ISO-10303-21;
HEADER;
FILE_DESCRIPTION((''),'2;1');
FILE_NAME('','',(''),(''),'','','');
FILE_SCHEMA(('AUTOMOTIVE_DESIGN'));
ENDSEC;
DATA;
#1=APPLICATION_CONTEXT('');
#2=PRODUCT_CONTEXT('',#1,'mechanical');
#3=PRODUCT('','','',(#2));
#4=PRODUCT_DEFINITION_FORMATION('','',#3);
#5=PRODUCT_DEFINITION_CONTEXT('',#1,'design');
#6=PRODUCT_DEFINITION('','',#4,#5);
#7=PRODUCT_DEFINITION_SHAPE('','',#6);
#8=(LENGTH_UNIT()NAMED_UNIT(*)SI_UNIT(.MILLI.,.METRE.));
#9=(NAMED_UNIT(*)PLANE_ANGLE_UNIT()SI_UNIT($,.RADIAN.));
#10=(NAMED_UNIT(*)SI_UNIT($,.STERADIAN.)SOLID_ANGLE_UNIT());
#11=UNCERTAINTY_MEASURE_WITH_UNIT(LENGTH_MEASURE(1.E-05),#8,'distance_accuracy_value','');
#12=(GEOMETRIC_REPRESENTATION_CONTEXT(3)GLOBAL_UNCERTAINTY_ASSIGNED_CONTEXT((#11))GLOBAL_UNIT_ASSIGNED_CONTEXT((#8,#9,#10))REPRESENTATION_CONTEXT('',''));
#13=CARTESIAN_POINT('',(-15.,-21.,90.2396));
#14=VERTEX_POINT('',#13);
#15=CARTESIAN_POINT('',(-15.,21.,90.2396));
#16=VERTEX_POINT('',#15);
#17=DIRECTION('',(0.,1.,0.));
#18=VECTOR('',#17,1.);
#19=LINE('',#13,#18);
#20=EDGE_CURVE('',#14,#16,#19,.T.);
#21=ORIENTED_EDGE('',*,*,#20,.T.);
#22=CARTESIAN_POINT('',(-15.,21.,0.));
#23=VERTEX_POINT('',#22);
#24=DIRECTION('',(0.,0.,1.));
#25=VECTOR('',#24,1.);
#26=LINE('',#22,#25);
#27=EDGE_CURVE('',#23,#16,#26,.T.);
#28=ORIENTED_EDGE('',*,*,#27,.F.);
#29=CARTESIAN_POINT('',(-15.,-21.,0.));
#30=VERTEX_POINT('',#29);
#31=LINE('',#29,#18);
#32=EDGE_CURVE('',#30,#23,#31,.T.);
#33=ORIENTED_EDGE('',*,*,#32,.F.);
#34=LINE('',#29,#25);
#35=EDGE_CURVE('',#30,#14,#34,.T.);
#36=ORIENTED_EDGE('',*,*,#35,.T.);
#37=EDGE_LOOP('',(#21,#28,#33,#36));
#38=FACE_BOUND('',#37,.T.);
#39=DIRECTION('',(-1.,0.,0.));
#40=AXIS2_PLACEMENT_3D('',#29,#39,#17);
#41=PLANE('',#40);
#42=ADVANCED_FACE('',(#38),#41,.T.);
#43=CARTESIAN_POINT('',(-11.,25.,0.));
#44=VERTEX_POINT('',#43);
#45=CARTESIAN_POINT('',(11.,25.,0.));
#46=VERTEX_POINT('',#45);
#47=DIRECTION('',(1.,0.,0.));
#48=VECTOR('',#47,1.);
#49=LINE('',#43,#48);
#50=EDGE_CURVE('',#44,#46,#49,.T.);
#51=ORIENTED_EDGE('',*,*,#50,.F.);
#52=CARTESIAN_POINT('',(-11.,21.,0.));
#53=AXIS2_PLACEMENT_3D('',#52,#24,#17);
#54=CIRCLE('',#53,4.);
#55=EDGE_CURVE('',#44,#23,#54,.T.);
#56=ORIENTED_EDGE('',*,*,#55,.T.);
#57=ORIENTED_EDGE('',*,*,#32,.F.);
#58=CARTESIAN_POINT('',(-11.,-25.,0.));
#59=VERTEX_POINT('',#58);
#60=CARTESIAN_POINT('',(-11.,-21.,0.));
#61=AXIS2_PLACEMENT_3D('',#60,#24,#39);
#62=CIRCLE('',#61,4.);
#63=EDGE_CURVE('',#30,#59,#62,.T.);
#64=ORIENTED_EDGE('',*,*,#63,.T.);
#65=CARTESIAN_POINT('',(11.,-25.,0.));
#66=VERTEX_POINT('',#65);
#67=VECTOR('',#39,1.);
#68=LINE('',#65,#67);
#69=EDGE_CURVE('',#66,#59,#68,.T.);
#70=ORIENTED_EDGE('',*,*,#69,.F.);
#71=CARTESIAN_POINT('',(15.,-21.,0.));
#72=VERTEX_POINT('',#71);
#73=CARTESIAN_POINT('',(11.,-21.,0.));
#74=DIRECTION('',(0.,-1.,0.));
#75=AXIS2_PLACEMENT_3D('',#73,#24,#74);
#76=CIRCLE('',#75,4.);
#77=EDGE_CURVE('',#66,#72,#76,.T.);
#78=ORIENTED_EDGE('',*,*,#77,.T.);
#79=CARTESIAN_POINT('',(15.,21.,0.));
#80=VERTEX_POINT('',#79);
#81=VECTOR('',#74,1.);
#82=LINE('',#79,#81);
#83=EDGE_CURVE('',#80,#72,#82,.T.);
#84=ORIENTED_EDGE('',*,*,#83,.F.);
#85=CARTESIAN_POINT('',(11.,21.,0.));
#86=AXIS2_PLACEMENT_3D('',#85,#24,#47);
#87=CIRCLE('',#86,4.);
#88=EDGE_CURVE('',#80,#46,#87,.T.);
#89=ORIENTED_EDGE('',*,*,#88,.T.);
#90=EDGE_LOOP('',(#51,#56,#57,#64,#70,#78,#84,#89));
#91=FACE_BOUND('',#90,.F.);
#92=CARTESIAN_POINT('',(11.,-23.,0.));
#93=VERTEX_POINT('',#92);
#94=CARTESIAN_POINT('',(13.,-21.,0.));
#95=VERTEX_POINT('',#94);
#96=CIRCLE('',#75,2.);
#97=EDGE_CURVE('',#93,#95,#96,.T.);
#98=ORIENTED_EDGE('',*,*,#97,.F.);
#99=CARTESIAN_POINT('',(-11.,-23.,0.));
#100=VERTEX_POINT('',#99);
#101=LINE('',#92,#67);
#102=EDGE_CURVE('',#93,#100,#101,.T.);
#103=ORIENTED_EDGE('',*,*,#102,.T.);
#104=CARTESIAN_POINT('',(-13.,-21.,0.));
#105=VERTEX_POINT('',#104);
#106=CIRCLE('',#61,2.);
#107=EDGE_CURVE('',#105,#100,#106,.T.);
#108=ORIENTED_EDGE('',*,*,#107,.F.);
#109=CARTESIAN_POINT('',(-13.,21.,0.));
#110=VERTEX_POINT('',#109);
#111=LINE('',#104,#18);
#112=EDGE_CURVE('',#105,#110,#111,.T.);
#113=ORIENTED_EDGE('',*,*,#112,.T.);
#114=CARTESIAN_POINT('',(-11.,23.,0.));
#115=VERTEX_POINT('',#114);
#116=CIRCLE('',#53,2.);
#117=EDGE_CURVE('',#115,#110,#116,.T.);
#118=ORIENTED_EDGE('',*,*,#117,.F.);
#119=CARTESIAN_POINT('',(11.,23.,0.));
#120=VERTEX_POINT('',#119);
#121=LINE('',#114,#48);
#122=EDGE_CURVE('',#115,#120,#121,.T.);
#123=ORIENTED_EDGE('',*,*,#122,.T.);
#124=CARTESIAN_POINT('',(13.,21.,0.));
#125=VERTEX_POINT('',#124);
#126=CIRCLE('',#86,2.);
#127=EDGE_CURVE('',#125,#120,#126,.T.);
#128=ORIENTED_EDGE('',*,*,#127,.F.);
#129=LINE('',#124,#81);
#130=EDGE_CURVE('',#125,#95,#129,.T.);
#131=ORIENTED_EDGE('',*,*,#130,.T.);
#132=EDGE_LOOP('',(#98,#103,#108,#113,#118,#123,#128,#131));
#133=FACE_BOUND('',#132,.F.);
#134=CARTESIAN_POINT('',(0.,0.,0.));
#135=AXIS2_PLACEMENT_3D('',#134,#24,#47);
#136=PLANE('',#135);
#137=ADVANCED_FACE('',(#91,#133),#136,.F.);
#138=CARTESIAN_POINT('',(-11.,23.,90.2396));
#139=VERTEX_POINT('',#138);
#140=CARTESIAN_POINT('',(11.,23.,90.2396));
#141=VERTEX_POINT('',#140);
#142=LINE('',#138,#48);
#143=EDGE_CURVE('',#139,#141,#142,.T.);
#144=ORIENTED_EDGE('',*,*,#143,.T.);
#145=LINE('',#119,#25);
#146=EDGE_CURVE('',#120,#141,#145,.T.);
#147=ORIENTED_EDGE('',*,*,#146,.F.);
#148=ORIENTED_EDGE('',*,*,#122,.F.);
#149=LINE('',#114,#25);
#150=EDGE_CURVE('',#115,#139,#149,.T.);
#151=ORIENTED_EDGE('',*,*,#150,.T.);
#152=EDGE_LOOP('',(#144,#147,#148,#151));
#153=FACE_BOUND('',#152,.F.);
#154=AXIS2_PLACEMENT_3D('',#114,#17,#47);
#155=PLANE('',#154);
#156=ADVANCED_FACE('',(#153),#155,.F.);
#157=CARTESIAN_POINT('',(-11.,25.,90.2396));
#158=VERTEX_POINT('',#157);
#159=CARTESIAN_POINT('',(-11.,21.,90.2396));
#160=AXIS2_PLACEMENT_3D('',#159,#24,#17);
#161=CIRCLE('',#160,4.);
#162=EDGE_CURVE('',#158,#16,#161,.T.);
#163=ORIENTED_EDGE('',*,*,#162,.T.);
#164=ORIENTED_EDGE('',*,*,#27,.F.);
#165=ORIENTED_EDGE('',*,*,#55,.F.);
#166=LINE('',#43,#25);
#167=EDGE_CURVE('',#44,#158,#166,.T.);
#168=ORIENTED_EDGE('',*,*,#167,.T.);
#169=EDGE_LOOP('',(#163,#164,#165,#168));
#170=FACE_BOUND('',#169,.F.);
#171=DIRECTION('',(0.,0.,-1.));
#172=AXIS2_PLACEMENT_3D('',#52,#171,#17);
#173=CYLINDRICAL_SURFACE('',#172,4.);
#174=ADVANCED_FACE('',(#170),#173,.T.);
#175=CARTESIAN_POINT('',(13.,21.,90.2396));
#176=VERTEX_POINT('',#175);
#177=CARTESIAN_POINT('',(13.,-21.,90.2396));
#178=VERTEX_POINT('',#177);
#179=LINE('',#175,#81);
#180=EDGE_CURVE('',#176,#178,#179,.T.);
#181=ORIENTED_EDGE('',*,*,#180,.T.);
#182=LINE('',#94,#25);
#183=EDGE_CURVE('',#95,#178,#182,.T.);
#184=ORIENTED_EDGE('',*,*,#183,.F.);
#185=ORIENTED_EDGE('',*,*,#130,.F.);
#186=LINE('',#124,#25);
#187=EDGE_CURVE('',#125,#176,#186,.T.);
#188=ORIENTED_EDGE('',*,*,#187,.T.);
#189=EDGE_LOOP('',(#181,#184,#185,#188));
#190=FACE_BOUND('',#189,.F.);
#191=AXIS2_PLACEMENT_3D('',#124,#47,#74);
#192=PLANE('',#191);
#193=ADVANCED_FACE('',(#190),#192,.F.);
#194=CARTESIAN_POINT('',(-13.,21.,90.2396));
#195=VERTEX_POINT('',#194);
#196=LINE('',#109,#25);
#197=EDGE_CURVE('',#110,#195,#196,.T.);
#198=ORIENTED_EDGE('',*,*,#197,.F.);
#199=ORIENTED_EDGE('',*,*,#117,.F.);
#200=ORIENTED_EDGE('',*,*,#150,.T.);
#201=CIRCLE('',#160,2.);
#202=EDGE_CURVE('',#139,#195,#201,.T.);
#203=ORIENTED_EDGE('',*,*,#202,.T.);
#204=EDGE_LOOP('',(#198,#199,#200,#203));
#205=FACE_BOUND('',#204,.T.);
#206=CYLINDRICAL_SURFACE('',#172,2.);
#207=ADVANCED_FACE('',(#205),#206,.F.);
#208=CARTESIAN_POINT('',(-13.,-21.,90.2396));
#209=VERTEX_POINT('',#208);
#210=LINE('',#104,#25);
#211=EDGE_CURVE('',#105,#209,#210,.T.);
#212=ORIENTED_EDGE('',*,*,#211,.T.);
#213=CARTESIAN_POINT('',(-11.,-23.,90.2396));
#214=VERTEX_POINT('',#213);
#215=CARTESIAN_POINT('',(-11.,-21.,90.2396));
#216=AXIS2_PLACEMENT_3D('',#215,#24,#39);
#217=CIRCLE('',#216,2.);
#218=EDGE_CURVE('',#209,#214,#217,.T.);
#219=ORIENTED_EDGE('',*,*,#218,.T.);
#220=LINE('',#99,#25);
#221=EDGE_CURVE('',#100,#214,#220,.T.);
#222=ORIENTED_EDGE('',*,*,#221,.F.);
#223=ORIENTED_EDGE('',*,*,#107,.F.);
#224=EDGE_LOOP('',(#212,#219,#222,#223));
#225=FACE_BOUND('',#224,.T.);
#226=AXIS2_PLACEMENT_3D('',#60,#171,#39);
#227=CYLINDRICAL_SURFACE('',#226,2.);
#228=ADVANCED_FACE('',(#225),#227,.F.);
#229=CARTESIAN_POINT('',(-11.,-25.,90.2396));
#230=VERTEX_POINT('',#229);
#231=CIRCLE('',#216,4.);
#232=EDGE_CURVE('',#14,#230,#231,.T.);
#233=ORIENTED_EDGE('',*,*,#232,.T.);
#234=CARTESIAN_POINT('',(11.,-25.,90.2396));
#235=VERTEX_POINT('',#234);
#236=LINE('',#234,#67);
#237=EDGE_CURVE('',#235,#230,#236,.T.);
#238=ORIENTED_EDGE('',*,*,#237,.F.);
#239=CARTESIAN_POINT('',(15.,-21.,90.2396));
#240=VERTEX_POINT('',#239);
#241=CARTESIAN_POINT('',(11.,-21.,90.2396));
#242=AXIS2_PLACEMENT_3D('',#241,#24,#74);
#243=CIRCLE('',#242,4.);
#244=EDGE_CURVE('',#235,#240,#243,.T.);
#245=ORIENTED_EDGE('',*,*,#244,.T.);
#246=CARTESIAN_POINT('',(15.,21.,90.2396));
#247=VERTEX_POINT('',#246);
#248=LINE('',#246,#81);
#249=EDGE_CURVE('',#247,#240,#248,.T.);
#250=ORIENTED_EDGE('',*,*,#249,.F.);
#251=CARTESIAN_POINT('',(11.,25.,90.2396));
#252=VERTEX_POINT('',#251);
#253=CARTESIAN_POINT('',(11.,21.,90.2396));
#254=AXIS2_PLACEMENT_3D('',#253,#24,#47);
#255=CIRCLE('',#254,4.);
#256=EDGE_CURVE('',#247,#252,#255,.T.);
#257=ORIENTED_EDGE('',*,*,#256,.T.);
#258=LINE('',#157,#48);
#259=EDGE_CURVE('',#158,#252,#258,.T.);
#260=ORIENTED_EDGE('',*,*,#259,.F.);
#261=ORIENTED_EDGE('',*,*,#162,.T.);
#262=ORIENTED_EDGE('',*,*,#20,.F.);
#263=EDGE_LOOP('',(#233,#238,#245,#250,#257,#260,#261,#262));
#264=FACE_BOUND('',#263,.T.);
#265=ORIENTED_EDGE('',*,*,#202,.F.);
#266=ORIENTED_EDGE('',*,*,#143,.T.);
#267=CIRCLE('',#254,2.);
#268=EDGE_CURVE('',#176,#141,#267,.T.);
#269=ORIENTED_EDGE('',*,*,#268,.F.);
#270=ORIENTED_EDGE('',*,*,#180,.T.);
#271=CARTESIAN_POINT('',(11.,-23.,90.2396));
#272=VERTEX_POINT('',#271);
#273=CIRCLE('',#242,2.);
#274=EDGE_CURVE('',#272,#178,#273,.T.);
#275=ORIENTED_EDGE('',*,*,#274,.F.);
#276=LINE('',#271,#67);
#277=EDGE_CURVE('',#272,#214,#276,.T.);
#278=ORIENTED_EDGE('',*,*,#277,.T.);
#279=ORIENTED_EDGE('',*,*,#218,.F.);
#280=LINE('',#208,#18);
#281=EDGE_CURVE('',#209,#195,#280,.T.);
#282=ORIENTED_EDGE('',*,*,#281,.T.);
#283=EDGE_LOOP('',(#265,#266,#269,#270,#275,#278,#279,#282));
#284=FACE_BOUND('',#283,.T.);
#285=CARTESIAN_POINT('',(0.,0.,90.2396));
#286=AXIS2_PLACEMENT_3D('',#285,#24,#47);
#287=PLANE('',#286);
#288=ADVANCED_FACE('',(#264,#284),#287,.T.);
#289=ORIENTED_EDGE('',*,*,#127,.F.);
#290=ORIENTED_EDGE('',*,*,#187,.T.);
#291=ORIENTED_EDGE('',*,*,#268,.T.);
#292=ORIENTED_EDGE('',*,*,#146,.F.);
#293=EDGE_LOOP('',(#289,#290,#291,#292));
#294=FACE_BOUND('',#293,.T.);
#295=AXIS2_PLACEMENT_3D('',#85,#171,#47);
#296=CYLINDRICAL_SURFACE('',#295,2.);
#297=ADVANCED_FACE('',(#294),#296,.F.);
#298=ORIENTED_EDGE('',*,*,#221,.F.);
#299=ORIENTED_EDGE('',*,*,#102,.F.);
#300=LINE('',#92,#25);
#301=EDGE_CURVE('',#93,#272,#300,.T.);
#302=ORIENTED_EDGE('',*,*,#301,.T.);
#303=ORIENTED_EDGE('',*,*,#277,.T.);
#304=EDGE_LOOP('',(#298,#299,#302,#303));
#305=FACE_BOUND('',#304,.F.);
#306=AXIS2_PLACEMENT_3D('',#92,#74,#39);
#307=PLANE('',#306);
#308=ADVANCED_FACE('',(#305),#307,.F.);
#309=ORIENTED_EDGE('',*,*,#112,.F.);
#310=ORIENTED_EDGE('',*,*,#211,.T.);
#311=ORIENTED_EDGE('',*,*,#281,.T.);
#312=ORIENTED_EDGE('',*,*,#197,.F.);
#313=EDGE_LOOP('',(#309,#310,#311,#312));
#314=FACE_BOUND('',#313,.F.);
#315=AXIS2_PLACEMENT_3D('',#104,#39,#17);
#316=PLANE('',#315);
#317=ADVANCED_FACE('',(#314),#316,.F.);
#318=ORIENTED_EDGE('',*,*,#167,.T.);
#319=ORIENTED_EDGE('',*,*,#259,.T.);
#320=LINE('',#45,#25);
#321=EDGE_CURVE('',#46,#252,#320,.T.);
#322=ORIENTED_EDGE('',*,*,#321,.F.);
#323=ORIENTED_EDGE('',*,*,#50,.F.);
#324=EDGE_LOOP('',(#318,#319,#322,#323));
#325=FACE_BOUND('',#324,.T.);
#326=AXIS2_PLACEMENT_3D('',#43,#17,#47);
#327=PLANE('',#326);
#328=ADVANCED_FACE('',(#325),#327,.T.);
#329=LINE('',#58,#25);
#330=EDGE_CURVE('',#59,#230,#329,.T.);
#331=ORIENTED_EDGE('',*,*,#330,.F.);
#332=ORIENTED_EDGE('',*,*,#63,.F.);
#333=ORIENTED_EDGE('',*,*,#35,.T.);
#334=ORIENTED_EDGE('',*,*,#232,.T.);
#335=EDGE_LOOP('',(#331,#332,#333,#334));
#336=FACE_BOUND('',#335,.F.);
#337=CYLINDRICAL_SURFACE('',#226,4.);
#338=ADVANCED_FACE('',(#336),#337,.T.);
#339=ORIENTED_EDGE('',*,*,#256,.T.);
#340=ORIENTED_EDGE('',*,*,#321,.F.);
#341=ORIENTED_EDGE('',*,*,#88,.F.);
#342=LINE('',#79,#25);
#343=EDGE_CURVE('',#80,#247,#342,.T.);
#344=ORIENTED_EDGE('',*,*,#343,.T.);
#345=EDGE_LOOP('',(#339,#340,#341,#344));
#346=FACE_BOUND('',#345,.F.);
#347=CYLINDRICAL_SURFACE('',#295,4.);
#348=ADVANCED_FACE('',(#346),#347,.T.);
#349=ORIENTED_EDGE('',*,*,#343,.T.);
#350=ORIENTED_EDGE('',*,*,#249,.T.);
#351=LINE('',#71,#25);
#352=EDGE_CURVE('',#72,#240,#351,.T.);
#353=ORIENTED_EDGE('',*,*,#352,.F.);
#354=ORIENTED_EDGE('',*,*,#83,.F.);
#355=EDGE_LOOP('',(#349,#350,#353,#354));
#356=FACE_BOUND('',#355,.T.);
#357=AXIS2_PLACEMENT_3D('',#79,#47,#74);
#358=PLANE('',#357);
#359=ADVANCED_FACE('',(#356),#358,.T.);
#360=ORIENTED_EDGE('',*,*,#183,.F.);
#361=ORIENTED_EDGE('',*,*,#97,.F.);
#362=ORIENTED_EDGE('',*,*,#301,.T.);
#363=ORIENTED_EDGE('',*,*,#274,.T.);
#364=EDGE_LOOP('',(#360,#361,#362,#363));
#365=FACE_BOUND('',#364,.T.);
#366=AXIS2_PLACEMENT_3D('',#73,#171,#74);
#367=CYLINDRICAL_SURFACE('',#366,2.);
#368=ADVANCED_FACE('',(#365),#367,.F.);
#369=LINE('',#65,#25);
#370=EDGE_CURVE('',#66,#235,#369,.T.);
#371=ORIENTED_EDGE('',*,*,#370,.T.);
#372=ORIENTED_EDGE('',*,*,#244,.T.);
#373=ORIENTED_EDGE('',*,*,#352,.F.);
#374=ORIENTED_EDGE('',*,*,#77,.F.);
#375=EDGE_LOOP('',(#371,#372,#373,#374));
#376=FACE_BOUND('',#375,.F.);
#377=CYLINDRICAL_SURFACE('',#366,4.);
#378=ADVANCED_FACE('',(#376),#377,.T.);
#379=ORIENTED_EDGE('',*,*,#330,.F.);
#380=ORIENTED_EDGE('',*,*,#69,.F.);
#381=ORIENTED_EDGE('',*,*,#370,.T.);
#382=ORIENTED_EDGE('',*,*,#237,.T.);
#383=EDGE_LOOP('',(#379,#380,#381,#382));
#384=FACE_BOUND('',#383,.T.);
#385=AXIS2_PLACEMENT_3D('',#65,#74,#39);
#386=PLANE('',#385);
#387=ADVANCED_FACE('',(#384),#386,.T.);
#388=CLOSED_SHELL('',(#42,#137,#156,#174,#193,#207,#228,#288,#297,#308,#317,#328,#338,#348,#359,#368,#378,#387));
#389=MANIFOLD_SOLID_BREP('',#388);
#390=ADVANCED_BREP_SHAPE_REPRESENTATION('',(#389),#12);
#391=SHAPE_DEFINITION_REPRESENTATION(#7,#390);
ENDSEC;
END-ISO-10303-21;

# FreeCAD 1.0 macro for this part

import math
import FreeCAD as App
import Part
import Sketcher

doc = App.newDocument("Part")
body = doc.addObject("PartDesign::Body", "Body")

# Sketch on XY plane
sketch1 = doc.addObject("Sketcher::SketchObject", "Sketch")
body.addObject(sketch1)
sketch1.AttachmentSupport = (doc.XY_Plane, [""])
sketch1.MapMode = "FlatFace"
sketch1.addGeometry(Part.LineSegment(App.Vector(-15, 21, 0), App.Vector(-15, -21, 0)), False)
sketch1.addGeometry(Part.ArcOfCircle(Part.Circle(App.Vector(-11, -21, 0), App.Vector(0, 0, 1), 4), math.radians(180), math.radians(270)), False)
sketch1.addGeometry(Part.LineSegment(App.Vector(-11, -25, 0), App.Vector(11, -25, 0)), False)
sketch1.addGeometry(Part.ArcOfCircle(Part.Circle(App.Vector(11, -21, 0), App.Vector(0, 0, 1), 4), math.radians(-90), math.radians(0)), False)
sketch1.addGeometry(Part.LineSegment(App.Vector(15, -21, 0), App.Vector(15, 21, 0)), False)
sketch1.addGeometry(Part.ArcOfCircle(Part.Circle(App.Vector(11, 21, 0), App.Vector(0, 0, 1), 4), math.radians(0), math.radians(90)), False)
sketch1.addGeometry(Part.LineSegment(App.Vector(11, 25, 0), App.Vector(-11, 25, 0)), False)
sketch1.addGeometry(Part.ArcOfCircle(Part.Circle(App.Vector(-11, 21, 0), App.Vector(0, 0, 1), 4), math.radians(90), math.radians(180)), False)
sketch1.addGeometry(Part.ArcOfCircle(Part.Circle(App.Vector(-11, 21, 0), App.Vector(0, 0, 1), 2), math.radians(90), math.radians(180)), False)
sketch1.addGeometry(Part.LineSegment(App.Vector(-11, 23, 0), App.Vector(11, 23, 0)), False)
sketch1.addGeometry(Part.ArcOfCircle(Part.Circle(App.Vector(11, 21, 0), App.Vector(0, 0, 1), 2), math.radians(0), math.radians(90)), False)
sketch1.addGeometry(Part.LineSegment(App.Vector(13, 21, 0), App.Vector(13, -21, 0)), False)
sketch1.addGeometry(Part.ArcOfCircle(Part.Circle(App.Vector(11, -21, 0), App.Vector(0, 0, 1), 2), math.radians(-90), math.radians(0)), False)
sketch1.addGeometry(Part.LineSegment(App.Vector(11, -23, 0), App.Vector(-11, -23, 0)), False)
sketch1.addGeometry(Part.ArcOfCircle(Part.Circle(App.Vector(-11, -21, 0), App.Vector(0, 0, 1), 2), math.radians(180), math.radians(270)), False)
sketch1.addGeometry(Part.LineSegment(App.Vector(-13, -21, 0), App.Vector(-13, 21, 0)), False)
sketch1.addConstraint(Sketcher.Constraint("Tangent", 0, 2, 1, 1))
sketch1.addConstraint(Sketcher.Constraint("Tangent", 1, 2, 2, 1))
sketch1.addConstraint(Sketcher.Constraint("Tangent", 2, 2, 3, 1))
sketch1.addConstraint(Sketcher.Constraint("Tangent", 3, 2, 4, 1))
sketch1.addConstraint(Sketcher.Constraint("Tangent", 4, 2, 5, 1))
sketch1.addConstraint(Sketcher.Constraint("Tangent", 5, 2, 6, 1))
sketch1.addConstraint(Sketcher.Constraint("Tangent", 6, 2, 7, 1))
sketch1.addConstraint(Sketcher.Constraint("Tangent", 7, 2, 0, 1))
sketch1.addConstraint(Sketcher.Constraint("Tangent", 8, 1, 9, 1))
sketch1.addConstraint(Sketcher.Constraint("Tangent", 9, 2, 10, 2))
sketch1.addConstraint(Sketcher.Constraint("Tangent", 10, 1, 11, 1))
sketch1.addConstraint(Sketcher.Constraint("Tangent", 11, 2, 12, 2))
sketch1.addConstraint(Sketcher.Constraint("Tangent", 12, 1, 13, 1))
sketch1.addConstraint(Sketcher.Constraint("Tangent", 13, 2, 14, 2))
sketch1.addConstraint(Sketcher.Constraint("Tangent", 14, 1, 15, 1))
sketch1.addConstraint(Sketcher.Constraint("Tangent", 15, 2, 8, 2))
sketch1.addConstraint(Sketcher.Constraint("Vertical", 0))
sketch1.addConstraint(Sketcher.Constraint("Horizontal", 2))
sketch1.addConstraint(Sketcher.Constraint("Vertical", 4))
sketch1.addConstraint(Sketcher.Constraint("Horizontal", 6))
sketch1.addConstraint(Sketcher.Constraint("Horizontal", 9))
sketch1.addConstraint(Sketcher.Constraint("Vertical", 11))
sketch1.addConstraint(Sketcher.Constraint("Horizontal", 13))
sketch1.addConstraint(Sketcher.Constraint("Vertical", 15))
sketch1.addConstraint(Sketcher.Constraint("Coincident", 8, 3, 7, 3))
sketch1.addConstraint(Sketcher.Constraint("Coincident", 10, 3, 5, 3))
sketch1.addConstraint(Sketcher.Constraint("Coincident", 12, 3, 3, 3))
sketch1.addConstraint(Sketcher.Constraint("Equal", 1, 3))
sketch1.addConstraint(Sketcher.Constraint("Equal", 3, 5))
sketch1.addConstraint(Sketcher.Constraint("Equal", 5, 7))
sketch1.addConstraint(Sketcher.Constraint("Equal", 12, 14))
sketch1.addConstraint(Sketcher.Constraint("Symmetric", 1, 3, 5, 3, -1, 1))
sketch1.addConstraint(Sketcher.Constraint("Radius", 1, 4.0))
sketch1.addConstraint(Sketcher.Constraint("Radius", 8, 2.0))
sketch1.addConstraint(Sketcher.Constraint("DistanceX", 0, 2, -1, 1, 15.0))
sketch1.addConstraint(Sketcher.Constraint("DistanceY", 1, 2, -1, 1, 25.0))
pad1 = doc.addObject("PartDesign::Pad", "Pad")
body.addObject(pad1)
pad1.Profile = sketch1
pad1.Length = 90.2396

doc.recompute()
